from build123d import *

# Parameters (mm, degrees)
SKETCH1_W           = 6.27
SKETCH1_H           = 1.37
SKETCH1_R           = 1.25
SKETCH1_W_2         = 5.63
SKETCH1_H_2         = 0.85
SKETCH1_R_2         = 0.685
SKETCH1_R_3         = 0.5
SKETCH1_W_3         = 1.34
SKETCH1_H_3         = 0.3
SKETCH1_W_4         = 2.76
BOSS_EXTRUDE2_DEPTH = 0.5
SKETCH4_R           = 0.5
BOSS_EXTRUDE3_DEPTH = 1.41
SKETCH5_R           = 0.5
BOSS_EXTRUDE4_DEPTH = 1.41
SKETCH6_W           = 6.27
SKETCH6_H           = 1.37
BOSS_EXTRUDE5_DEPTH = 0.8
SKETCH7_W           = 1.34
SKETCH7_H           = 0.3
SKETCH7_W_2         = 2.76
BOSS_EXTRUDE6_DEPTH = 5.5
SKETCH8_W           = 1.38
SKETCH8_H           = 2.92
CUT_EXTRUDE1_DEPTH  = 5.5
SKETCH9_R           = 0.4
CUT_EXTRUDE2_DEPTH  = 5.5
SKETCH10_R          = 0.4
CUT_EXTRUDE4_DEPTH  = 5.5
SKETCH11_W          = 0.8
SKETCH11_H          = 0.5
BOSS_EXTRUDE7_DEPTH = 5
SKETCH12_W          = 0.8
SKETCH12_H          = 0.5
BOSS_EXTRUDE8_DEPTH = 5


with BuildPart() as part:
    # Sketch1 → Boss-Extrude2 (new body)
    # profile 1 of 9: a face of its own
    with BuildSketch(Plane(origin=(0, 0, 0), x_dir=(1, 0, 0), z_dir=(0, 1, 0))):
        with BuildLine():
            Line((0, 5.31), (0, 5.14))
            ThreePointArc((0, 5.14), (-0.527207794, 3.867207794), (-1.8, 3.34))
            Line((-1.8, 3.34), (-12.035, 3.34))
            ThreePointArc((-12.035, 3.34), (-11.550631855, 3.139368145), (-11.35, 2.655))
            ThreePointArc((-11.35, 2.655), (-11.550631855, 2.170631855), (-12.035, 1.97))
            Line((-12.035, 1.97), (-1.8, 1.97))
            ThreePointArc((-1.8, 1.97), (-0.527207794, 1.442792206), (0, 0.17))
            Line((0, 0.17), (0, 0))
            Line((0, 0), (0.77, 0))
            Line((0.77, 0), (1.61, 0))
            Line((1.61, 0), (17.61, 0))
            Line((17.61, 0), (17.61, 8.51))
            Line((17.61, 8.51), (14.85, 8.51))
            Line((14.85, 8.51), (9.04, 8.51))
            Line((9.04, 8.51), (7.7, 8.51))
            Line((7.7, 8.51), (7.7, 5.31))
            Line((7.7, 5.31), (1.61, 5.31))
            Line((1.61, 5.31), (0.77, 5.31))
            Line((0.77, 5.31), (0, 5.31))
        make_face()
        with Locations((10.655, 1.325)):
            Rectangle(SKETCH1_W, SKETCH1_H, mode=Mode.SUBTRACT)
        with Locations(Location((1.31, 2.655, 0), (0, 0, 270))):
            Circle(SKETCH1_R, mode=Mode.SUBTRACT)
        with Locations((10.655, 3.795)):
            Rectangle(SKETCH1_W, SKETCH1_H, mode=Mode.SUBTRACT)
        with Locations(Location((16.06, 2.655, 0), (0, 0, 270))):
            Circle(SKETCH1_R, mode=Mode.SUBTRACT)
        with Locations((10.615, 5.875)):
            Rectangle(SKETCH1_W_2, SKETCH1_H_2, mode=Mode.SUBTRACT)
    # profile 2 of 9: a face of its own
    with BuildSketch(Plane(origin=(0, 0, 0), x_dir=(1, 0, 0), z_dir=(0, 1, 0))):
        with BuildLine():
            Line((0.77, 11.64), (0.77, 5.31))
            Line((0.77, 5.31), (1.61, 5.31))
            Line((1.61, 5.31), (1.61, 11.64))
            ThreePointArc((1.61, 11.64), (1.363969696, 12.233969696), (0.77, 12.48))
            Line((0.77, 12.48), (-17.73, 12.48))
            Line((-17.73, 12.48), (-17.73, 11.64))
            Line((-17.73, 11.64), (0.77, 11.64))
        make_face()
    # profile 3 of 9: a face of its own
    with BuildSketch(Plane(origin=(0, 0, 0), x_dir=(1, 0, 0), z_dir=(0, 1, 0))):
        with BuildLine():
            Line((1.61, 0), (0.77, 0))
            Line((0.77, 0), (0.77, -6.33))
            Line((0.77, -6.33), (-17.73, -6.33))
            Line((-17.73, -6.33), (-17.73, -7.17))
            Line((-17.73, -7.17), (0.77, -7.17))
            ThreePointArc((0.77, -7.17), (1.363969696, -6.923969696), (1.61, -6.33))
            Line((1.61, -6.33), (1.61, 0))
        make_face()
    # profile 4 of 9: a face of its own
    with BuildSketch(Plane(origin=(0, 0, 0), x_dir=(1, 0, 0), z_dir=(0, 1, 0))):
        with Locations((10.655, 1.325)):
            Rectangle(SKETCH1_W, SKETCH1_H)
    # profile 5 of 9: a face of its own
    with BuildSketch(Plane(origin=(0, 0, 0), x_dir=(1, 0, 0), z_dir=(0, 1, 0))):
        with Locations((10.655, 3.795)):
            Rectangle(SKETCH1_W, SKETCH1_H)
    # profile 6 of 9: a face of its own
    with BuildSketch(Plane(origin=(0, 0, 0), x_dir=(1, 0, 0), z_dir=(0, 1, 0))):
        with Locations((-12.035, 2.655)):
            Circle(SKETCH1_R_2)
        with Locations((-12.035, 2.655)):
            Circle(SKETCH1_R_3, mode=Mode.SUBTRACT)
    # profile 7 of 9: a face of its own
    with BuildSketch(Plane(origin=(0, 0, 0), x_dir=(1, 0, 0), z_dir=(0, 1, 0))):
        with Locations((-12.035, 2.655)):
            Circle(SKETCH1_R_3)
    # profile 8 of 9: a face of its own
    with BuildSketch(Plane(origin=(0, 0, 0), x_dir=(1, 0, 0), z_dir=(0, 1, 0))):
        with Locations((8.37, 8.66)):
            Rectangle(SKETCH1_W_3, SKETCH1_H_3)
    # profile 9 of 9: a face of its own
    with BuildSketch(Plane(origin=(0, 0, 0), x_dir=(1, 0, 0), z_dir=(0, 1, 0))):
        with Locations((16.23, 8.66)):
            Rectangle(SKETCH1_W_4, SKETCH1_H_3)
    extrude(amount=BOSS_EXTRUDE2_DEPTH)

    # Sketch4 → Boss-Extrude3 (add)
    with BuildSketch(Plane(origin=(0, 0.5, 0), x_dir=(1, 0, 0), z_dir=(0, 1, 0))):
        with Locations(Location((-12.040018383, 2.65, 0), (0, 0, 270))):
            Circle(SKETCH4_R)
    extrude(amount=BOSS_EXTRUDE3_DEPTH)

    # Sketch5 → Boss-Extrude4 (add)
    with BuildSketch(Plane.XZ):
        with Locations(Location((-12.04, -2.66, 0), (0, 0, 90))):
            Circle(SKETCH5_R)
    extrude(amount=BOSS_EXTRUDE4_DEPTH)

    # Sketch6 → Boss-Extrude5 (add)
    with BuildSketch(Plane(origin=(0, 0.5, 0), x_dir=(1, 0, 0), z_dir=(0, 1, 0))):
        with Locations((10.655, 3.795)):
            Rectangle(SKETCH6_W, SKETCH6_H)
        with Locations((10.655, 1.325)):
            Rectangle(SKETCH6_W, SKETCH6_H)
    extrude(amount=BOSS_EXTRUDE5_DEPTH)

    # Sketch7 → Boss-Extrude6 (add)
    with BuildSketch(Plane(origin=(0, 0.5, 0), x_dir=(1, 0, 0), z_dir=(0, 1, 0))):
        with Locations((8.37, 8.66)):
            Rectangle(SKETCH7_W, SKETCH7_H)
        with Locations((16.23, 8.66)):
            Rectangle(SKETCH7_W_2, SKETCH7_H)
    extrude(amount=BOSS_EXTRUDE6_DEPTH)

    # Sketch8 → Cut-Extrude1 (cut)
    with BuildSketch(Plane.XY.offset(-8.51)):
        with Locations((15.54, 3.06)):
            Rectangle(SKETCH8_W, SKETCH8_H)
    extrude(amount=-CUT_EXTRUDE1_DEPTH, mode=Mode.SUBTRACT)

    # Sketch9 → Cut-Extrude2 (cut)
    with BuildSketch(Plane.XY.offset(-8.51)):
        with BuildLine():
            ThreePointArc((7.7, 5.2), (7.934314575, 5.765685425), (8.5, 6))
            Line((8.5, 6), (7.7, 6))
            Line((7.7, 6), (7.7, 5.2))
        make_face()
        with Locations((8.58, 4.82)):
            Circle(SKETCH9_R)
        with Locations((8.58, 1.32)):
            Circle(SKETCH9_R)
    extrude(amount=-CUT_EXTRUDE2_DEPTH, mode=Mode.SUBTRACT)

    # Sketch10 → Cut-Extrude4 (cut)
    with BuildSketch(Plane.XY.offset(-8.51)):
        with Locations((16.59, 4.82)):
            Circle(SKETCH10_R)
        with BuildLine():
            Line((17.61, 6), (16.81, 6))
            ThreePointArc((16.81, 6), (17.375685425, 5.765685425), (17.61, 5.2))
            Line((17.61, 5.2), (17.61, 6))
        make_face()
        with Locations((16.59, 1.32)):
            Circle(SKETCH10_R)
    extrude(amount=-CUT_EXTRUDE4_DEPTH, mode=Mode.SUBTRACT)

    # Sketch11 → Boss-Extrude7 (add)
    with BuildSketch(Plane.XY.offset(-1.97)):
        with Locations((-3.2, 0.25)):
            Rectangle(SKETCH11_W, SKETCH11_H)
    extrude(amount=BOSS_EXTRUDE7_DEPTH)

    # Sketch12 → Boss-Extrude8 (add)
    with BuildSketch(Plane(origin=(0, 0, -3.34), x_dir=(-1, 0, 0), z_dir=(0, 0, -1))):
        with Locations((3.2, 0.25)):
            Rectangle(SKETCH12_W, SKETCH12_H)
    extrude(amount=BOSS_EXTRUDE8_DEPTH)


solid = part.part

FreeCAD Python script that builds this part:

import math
import FreeCAD as App
import Part
import Sketcher
Q = App.Units.Quantity

doc = App.newDocument("Part")
params = doc.addObject("Spreadsheet::Sheet", "Params")
for row, (alias, value) in enumerate([
    ("sketch1_diameter", "2.5 mm"),
    ("sketch1_radius", "1.8 mm"),
    ("sketch1_width", "16 mm"),
    ("sketch1_radius2", "0.84 mm"),
    ("sketch1_width2", "18.5 mm"),
    ("pad1_length", "0.5 mm"),
    ("sketch2_diameter", "1 mm"),
    ("pad2_length", "1.41 mm"),
    ("sketch3_diameter", "1 mm"),
    ("pad3_length", "1.41 mm"),
    ("sketch4_width", "6.27 mm"),
    ("sketch4_height", "1.37 mm"),
    ("pad4_length", "0.8 mm"),
    ("sketch5_height", "0.3 mm"),
    ("sketch5_width", "1.34 mm"),
    ("sketch5_width2", "2.76 mm"),
    ("pad5_length", "5.5 mm"),
    ("sketch6_width", "1.38 mm"),
    ("sketch6_height", "2.92 mm"),
    ("pocket1_length", "5.5 mm"),
    ("sketch7_diameter", "0.8 mm"),
    ("sketch7_radius", "0.8 mm"),
    ("pocket2_length", "5.5 mm"),
    ("sketch8_diameter", "0.8 mm"),
    ("sketch8_radius", "0.8 mm"),
    ("pocket3_length", "5.5 mm"),
    ("sketch9_width", "0.8 mm"),
    ("sketch9_height", "0.5 mm"),
    ("pad6_length", "5 mm"),
    ("sketch10_width", "0.8 mm"),
    ("sketch10_height", "0.5 mm"),
    ("pad7_length", "5 mm"),
], start=1):
    params.set(f"A{row}", alias)
    params.set(f"B{row}", "=" + value)
    params.setAlias(f"B{row}", alias)

body = doc.addObject("PartDesign::Body", "Body")

# Sketch on XZ plane
sketch1 = body.newObject("Sketcher::SketchObject", "Sketch")
sketch1.AttachmentSupport = (doc.getObject("XZ_Plane"), [""])
sketch1.MapMode = "FlatFace"
sketch1.addGeometry(Part.LineSegment(App.Vector(0, -5.31, 0), App.Vector(0, -5.14, 0)), False)
sketch1.addGeometry(Part.ArcOfCircle(Part.Circle(App.Vector(-1.8, -5.14, 0), App.Vector(0, 0, 1), 1.8), math.radians(0), math.radians(90)), False)
sketch1.addGeometry(Part.LineSegment(App.Vector(-1.8, -3.34, 0), App.Vector(-12.04, -3.34, 0)), False)
sketch1.addGeometry(Part.ArcOfCircle(Part.Circle(App.Vector(-12.04, -2.65, 0), App.Vector(0, 0, 1), 0.69), math.radians(90), math.radians(270)), False)
sketch1.addGeometry(Part.LineSegment(App.Vector(-12.04, -1.97, 0), App.Vector(-1.8, -1.97, 0)), False)
sketch1.addGeometry(Part.ArcOfCircle(Part.Circle(App.Vector(-1.8, -0.17, 0), App.Vector(0, 0, 1), 1.8), math.radians(-90), math.radians(0)), False)
sketch1.addGeometry(Part.LineSegment(App.Vector(0, -0.17, 0), App.Vector(0, 0, 0)), False)
sketch1.addGeometry(Part.LineSegment(App.Vector(0, 0, 0), App.Vector(0.77, 0, 0)), False)
sketch1.addGeometry(Part.LineSegment(App.Vector(0.77, 0, 0), App.Vector(0.77, 6.33, 0)), False)
sketch1.addGeometry(Part.LineSegment(App.Vector(0.77, 6.33, 0), App.Vector(-17.73, 6.33, 0)), False)
sketch1.addGeometry(Part.LineSegment(App.Vector(-17.73, 6.33, 0), App.Vector(-17.73, 7.17, 0)), False)
sketch1.addGeometry(Part.LineSegment(App.Vector(-17.73, 7.17, 0), App.Vector(0.77, 7.17, 0)), False)
sketch1.addGeometry(Part.ArcOfCircle(Part.Circle(App.Vector(0.77, 6.33, 0), App.Vector(0, 0, 1), 0.84), math.radians(0), math.radians(90)), False)
sketch1.addGeometry(Part.LineSegment(App.Vector(1.61, 6.33, 0), App.Vector(1.61, 0, 0)), False)
sketch1.addGeometry(Part.LineSegment(App.Vector(1.61, 0, 0), App.Vector(17.61, 0, 0)), False)
sketch1.addGeometry(Part.LineSegment(App.Vector(17.61, 0, 0), App.Vector(17.61, -8.81, 0)), False)
sketch1.addGeometry(Part.LineSegment(App.Vector(17.61, -8.81, 0), App.Vector(14.85, -8.81, 0)), False)
sketch1.addGeometry(Part.LineSegment(App.Vector(14.85, -8.81, 0), App.Vector(14.85, -8.51, 0)), False)
sketch1.addGeometry(Part.LineSegment(App.Vector(14.85, -8.51, 0), App.Vector(9.04, -8.51, 0)), False)
sketch1.addGeometry(Part.LineSegment(App.Vector(9.04, -8.51, 0), App.Vector(9.04, -8.81, 0)), False)
sketch1.addGeometry(Part.LineSegment(App.Vector(9.04, -8.81, 0), App.Vector(7.7, -8.81, 0)), False)
sketch1.addGeometry(Part.LineSegment(App.Vector(7.7, -8.81, 0), App.Vector(7.7, -5.31, 0)), False)
sketch1.addGeometry(Part.LineSegment(App.Vector(7.7, -5.31, 0), App.Vector(1.61, -5.31, 0)), False)
sketch1.addGeometry(Part.LineSegment(App.Vector(1.61, -5.31, 0), App.Vector(1.61, -11.64, 0)), False)
sketch1.addGeometry(Part.ArcOfCircle(Part.Circle(App.Vector(0.77, -11.64, 0), App.Vector(0, 0, 1), 0.84), math.radians(-90), math.radians(0)), False)
sketch1.addGeometry(Part.LineSegment(App.Vector(0.77, -12.48, 0), App.Vector(-17.73, -12.48, 0)), False)
sketch1.addGeometry(Part.LineSegment(App.Vector(-17.73, -12.48, 0), App.Vector(-17.73, -11.64, 0)), False)
sketch1.addGeometry(Part.LineSegment(App.Vector(-17.73, -11.64, 0), App.Vector(0.77, -11.64, 0)), False)
sketch1.addGeometry(Part.LineSegment(App.Vector(0.77, -11.64, 0), App.Vector(0.77, -5.31, 0)), False)
sketch1.addGeometry(Part.LineSegment(App.Vector(0.77, -5.31, 0), App.Vector(0, -5.31, 0)), False)
sketch1.addGeometry(Part.Circle(App.Vector(1.31, -2.65, 0), App.Vector(0, 0, 1), 1.25), False)
sketch1.addGeometry(Part.Circle(App.Vector(16.06, -2.65, 0), App.Vector(0, 0, 1), 1.25), False)
sketch1.addGeometry(Part.LineSegment(App.Vector(13.43, -5.45, 0), App.Vector(7.8, -5.45, 0)), False)
sketch1.addGeometry(Part.LineSegment(App.Vector(7.8, -5.45, 0), App.Vector(7.8, -6.3, 0)), False)
sketch1.addGeometry(Part.LineSegment(App.Vector(7.8, -6.3, 0), App.Vector(13.43, -6.3, 0)), False)
sketch1.addGeometry(Part.LineSegment(App.Vector(13.43, -6.3, 0), App.Vector(13.43, -5.45, 0)), False)
sketch1.addConstraint(Sketcher.Constraint("Tangent", 0, 2, 1, 1))
sketch1.addConstraint(Sketcher.Constraint("Tangent", 1, 2, 2, 1))
sketch1.addConstraint(Sketcher.Constraint("Tangent", 2, 2, 3, 2))
sketch1.addConstraint(Sketcher.Constraint("Tangent", 3, 1, 4, 1))
sketch1.addConstraint(Sketcher.Constraint("Tangent", 4, 2, 5, 1))
sketch1.addConstraint(Sketcher.Constraint("Tangent", 5, 2, 6, 1))
sketch1.addConstraint(Sketcher.Constraint("Coincident", 6, 2, 7, 1))
sketch1.addConstraint(Sketcher.Constraint("Coincident", 7, 2, 8, 1))
sketch1.addConstraint(Sketcher.Constraint("Coincident", 8, 2, 9, 1))
sketch1.addConstraint(Sketcher.Constraint("Coincident", 9, 2, 10, 1))
sketch1.addConstraint(Sketcher.Constraint("Coincident", 10, 2, 11, 1))
sketch1.addConstraint(Sketcher.Constraint("Tangent", 11, 2, 12, 2))
sketch1.addConstraint(Sketcher.Constraint("Tangent", 12, 1, 13, 1))
sketch1.addConstraint(Sketcher.Constraint("Coincident", 13, 2, 14, 1))
sketch1.addConstraint(Sketcher.Constraint("Coincident", 14, 2, 15, 1))
sketch1.addConstraint(Sketcher.Constraint("Coincident", 15, 2, 16, 1))
sketch1.addConstraint(Sketcher.Constraint("Coincident", 16, 2, 17, 1))
sketch1.addConstraint(Sketcher.Constraint("Coincident", 17, 2, 18, 1))
sketch1.addConstraint(Sketcher.Constraint("Coincident", 18, 2, 19, 1))
sketch1.addConstraint(Sketcher.Constraint("Coincident", 19, 2, 20, 1))
sketch1.addConstraint(Sketcher.Constraint("Coincident", 20, 2, 21, 1))
sketch1.addConstraint(Sketcher.Constraint("Coincident", 21, 2, 22, 1))
sketch1.addConstraint(Sketcher.Constraint("Coincident", 22, 2, 23, 1))
sketch1.addConstraint(Sketcher.Constraint("Tangent", 23, 2, 24, 2))
sketch1.addConstraint(Sketcher.Constraint("Tangent", 24, 1, 25, 1))
sketch1.addConstraint(Sketcher.Constraint("Coincident", 25, 2, 26, 1))
sketch1.addConstraint(Sketcher.Constraint("Coincident", 26, 2, 27, 1))
sketch1.addConstraint(Sketcher.Constraint("Coincident", 27, 2, 28, 1))
sketch1.addConstraint(Sketcher.Constraint("Coincident", 28, 2, 29, 1))
sketch1.addConstraint(Sketcher.Constraint("Coincident", 29, 2, 0, 1))
sketch1.addConstraint(Sketcher.Constraint("Coincident", 32, 2, 33, 1))
sketch1.addConstraint(Sketcher.Constraint("Coincident", 33, 2, 34, 1))
sketch1.addConstraint(Sketcher.Constraint("Coincident", 34, 2, 35, 1))
sketch1.addConstraint(Sketcher.Constraint("Coincident", 35, 2, 32, 1))
sketch1.addConstraint(Sketcher.Constraint("Vertical", 0))
sketch1.addConstraint(Sketcher.Constraint("Horizontal", 2))
sketch1.addConstraint(Sketcher.Constraint("Horizontal", 4))
sketch1.addConstraint(Sketcher.Constraint("Vertical", 6))
sketch1.addConstraint(Sketcher.Constraint("Horizontal", 7))
sketch1.addConstraint(Sketcher.Constraint("Vertical", 8))
sketch1.addConstraint(Sketcher.Constraint("Horizontal", 9))
sketch1.addConstraint(Sketcher.Constraint("Vertical", 10))
sketch1.addConstraint(Sketcher.Constraint("Horizontal", 11))
sketch1.addConstraint(Sketcher.Constraint("Vertical", 13))
sketch1.addConstraint(Sketcher.Constraint("Horizontal", 14))
sketch1.addConstraint(Sketcher.Constraint("Vertical", 15))
sketch1.addConstraint(Sketcher.Constraint("Horizontal", 16))
sketch1.addConstraint(Sketcher.Constraint("Vertical", 17))
sketch1.addConstraint(Sketcher.Constraint("Horizontal", 18))
sketch1.addConstraint(Sketcher.Constraint("Vertical", 19))
sketch1.addConstraint(Sketcher.Constraint("Horizontal", 20))
sketch1.addConstraint(Sketcher.Constraint("Vertical", 21))
sketch1.addConstraint(Sketcher.Constraint("Horizontal", 22))
sketch1.addConstraint(Sketcher.Constraint("Vertical", 23))
sketch1.addConstraint(Sketcher.Constraint("Horizontal", 25))
sketch1.addConstraint(Sketcher.Constraint("Vertical", 26))
sketch1.addConstraint(Sketcher.Constraint("Horizontal", 27))
sketch1.addConstraint(Sketcher.Constraint("Vertical", 28))
sketch1.addConstraint(Sketcher.Constraint("Horizontal", 29))
sketch1.addConstraint(Sketcher.Constraint("Horizontal", 32))
sketch1.addConstraint(Sketcher.Constraint("Vertical", 33))
sketch1.addConstraint(Sketcher.Constraint("Horizontal", 34))
sketch1.addConstraint(Sketcher.Constraint("Vertical", 35))
sketch1.addConstraint(Sketcher.Constraint("Coincident", 6, 2, -1, 1))
sketch1.addConstraint(Sketcher.Constraint("Coincident", 8, 2, 12, 3))
sketch1.addConstraint(Sketcher.Constraint("Coincident", 27, 2, 24, 3))
sketch1.addConstraint(Sketcher.Constraint("Equal", 1, 5))
sketch1.addConstraint(Sketcher.Constraint("Equal", 12, 24))
sketch1.addConstraint(Sketcher.Constraint("Equal", 30, 31))
sketch1.addConstraint(Sketcher.Constraint("PointOnObject", 0, 2, -2))
sketch1.addConstraint(Sketcher.Constraint("PointOnObject", 13, 2, -1))
sketch1.addConstraint(Sketcher.Constraint("Horizontal", 3, 3, 30, 3))
sketch1.addConstraint(Sketcher.Constraint("Horizontal", 30, 3, 31, 3))
sketch1.addConstraint(Sketcher.Constraint("Horizontal", 16, 2, 19, 2))
sketch1.addConstraint(Sketcher.Constraint("Horizontal", 22, 2, 28, 2))
sketch1.addConstraint(Sketcher.Constraint("Vertical", 12, 3, 24, 3))
sketch1.addConstraint(Sketcher.Constraint("Vertical", 10, 2, 25, 2))
sketch1.addConstraint(Sketcher.Constraint("Equal", 0, 6))
sketch1.addConstraint(Sketcher.Constraint("Equal", 13, 23))
sketch1.addConstraint(Sketcher.Constraint("Diameter", 30, Q("2.5 mm")))
sketch1.addConstraint(Sketcher.Constraint("Radius", 1, Q("1.8 mm")))
sketch1.addConstraint(Sketcher.Constraint("DistanceX", 14, 1, 14, 2, Q("16 mm")))
sketch1.addConstraint(Sketcher.Constraint("Radius", 12, Q("0.84 mm")))
sketch1.addConstraint(Sketcher.Constraint("DistanceX", 9, 2, 9, 1, Q("18.5 mm")))
sketch1.addConstraint(Sketcher.Constraint("DistanceY", 17, 1, 17, 2, Q("0.3 mm")))
sketch1.addConstraint(Sketcher.Constraint("DistanceY", 21, 1, 21, 2, Q("3.5 mm")))
sketch1.addConstraint(Sketcher.Constraint("Radius", 3, Q("0.685 mm")))
sketch1.addConstraint(Sketcher.Constraint("DistanceX", 7, 1, 7, 2, Q("0.77 mm")))
sketch1.addConstraint(Sketcher.Constraint("DistanceX", 16, 2, 16, 1, Q("2.76 mm")))
sketch1.addConstraint(Sketcher.Constraint("DistanceX", 18, 2, 18, 1, Q("5.81 mm")))
sketch1.addConstraint(Sketcher.Constraint("DistanceX", 20, 2, 20, 1, Q("1.34 mm")))
sketch1.addConstraint(Sketcher.Constraint("DistanceX", 32, 2, 32, 1, Q("5.63 mm")))
sketch1.addConstraint(Sketcher.Constraint("DistanceY", 0, 1, 0, 2, Q("0.17 mm")))
sketch1.addConstraint(Sketcher.Constraint("DistanceY", 8, 1, 8, 2, Q("6.33 mm")))
sketch1.addConstraint(Sketcher.Constraint("DistanceY", 33, 2, 33, 1, Q("0.85 mm")))
sketch1.addConstraint(Sketcher.Constraint("DistanceX", -1, 1, 32, 2, Q("7.8 mm")))
sketch1.addConstraint(Sketcher.Constraint("DistanceY", 33, 2, -1, 1, Q("6.3 mm")))
sketch1.addConstraint(Sketcher.Constraint("DistanceX", 30, 3, 13, 2, Q("0.3 mm")))
sketch1.addConstraint(Sketcher.Constraint("DistanceX", 2, 2, 2, 1, Q("10.235 mm")))
sketch1.addConstraint(Sketcher.Constraint("DistanceX", -1, 1, 31, 3, Q("16.06 mm")))
sketch1.setExpression("Constraints[79]", "Params.sketch1_diameter")
sketch1.setExpression("Constraints[80]", "Params.sketch1_radius")
sketch1.setExpression("Constraints[81]", "Params.sketch1_width")
sketch1.setExpression("Constraints[82]", "Params.sketch1_radius2")
sketch1.setExpression("Constraints[83]", "Params.sketch1_width2")
pad1 = body.newObject("PartDesign::Pad", "Pad")
pad1.Profile = sketch1
pad1.setExpression("Length", "Params.pad1_length")
pad1.Reversed = True

# Sketch on XZ plane
sketch2 = body.newObject("Sketcher::SketchObject", "Sketch001")
sketch2.AttachmentSupport = (doc.getObject("XZ_Plane"), [""])
sketch2.MapMode = "FlatFace"
sketch2.AttachmentOffset = App.Placement(App.Vector(0, 0, -0.5), App.Rotation())
sketch2.addGeometry(Part.Circle(App.Vector(-12, -2.6, 0), App.Vector(0, 0, 1), 0.5), False)
sketch2.addConstraint(Sketcher.Constraint("Diameter", 0, Q("1 mm")))
sketch2.addConstraint(Sketcher.Constraint("DistanceY", 0, 3, -1, 1, Q("2.65 mm")))
sketch2.addConstraint(Sketcher.Constraint("DistanceX", 0, 3, -1, 1, Q("12.040018 mm")))
sketch2.setExpression("Constraints[0]", "Params.sketch2_diameter")
pad2 = body.newObject("PartDesign::Pad", "Pad001")
pad2.Profile = sketch2
pad2.setExpression("Length", "Params.pad2_length")
pad2.Reversed = True

# Sketch on XZ plane
sketch3 = body.newObject("Sketcher::SketchObject", "Sketch002")
sketch3.AttachmentSupport = (doc.getObject("XZ_Plane"), [""])
sketch3.MapMode = "FlatFace"
sketch3.addGeometry(Part.Circle(App.Vector(-12, -2.7, 0), App.Vector(0, 0, 1), 0.5), False)
sketch3.addConstraint(Sketcher.Constraint("Diameter", 0, Q("1 mm")))
sketch3.addConstraint(Sketcher.Constraint("DistanceX", 0, 3, -1, 1, Q("12.04 mm")))
sketch3.addConstraint(Sketcher.Constraint("DistanceY", 0, 3, -1, 1, Q("2.66 mm")))
sketch3.setExpression("Constraints[0]", "Params.sketch3_diameter")
pad3 = body.newObject("PartDesign::Pad", "Pad002")
pad3.Profile = sketch3
pad3.setExpression("Length", "Params.pad3_length")

# Sketch on XZ plane
sketch4 = body.newObject("Sketcher::SketchObject", "Sketch003")
sketch4.AttachmentSupport = (doc.getObject("XZ_Plane"), [""])
sketch4.MapMode = "FlatFace"
sketch4.AttachmentOffset = App.Placement(App.Vector(0, 0, -0.5), App.Rotation())
sketch4.addGeometry(Part.LineSegment(App.Vector(7.5, -4.5, 0), App.Vector(7.5, -3.1, 0)), False)
sketch4.addGeometry(Part.LineSegment(App.Vector(7.5, -3.1, 0), App.Vector(13.8, -3.1, 0)), False)
sketch4.addGeometry(Part.LineSegment(App.Vector(13.8, -3.1, 0), App.Vector(13.8, -4.5, 0)), False)
sketch4.addGeometry(Part.LineSegment(App.Vector(13.8, -4.5, 0), App.Vector(7.5, -4.5, 0)), False)
sketch4.addGeometry(Part.LineSegment(App.Vector(7.5, -2, 0), App.Vector(7.5, -0.6, 0)), False)
sketch4.addGeometry(Part.LineSegment(App.Vector(7.5, -0.6, 0), App.Vector(13.8, -0.6, 0)), False)
sketch4.addGeometry(Part.LineSegment(App.Vector(13.8, -0.6, 0), App.Vector(13.8, -2, 0)), False)
sketch4.addGeometry(Part.LineSegment(App.Vector(13.8, -2, 0), App.Vector(7.5, -2, 0)), False)
sketch4.addConstraint(Sketcher.Constraint("Coincident", 0, 2, 1, 1))
sketch4.addConstraint(Sketcher.Constraint("Coincident", 1, 2, 2, 1))
sketch4.addConstraint(Sketcher.Constraint("Coincident", 2, 2, 3, 1))
sketch4.addConstraint(Sketcher.Constraint("Coincident", 3, 2, 0, 1))
sketch4.addConstraint(Sketcher.Constraint("Coincident", 4, 2, 5, 1))
sketch4.addConstraint(Sketcher.Constraint("Coincident", 5, 2, 6, 1))
sketch4.addConstraint(Sketcher.Constraint("Coincident", 6, 2, 7, 1))
sketch4.addConstraint(Sketcher.Constraint("Coincident", 7, 2, 4, 1))
sketch4.addConstraint(Sketcher.Constraint("Vertical", 0))
sketch4.addConstraint(Sketcher.Constraint("Horizontal", 1))
sketch4.addConstraint(Sketcher.Constraint("Vertical", 2))
sketch4.addConstraint(Sketcher.Constraint("Horizontal", 3))
sketch4.addConstraint(Sketcher.Constraint("Vertical", 4))
sketch4.addConstraint(Sketcher.Constraint("Horizontal", 5))
sketch4.addConstraint(Sketcher.Constraint("Vertical", 6))
sketch4.addConstraint(Sketcher.Constraint("Horizontal", 7))
sketch4.addConstraint(Sketcher.Constraint("Vertical", 3, 2, 4, 2))
sketch4.addConstraint(Sketcher.Constraint("Vertical", 2, 2, 5, 2))
sketch4.addConstraint(Sketcher.Constraint("Equal", 2, 4))
sketch4.addConstraint(Sketcher.Constraint("DistanceX", 1, 1, 1, 2, Q("6.27 mm")))
sketch4.addConstraint(Sketcher.Constraint("DistanceY", 0, 1, 0, 2, Q("1.37 mm")))
sketch4.addConstraint(Sketcher.Constraint("DistanceY", 1, 2, 6, 2, Q("1.1 mm")))
sketch4.addConstraint(Sketcher.Constraint("DistanceX", -1, 1, 0, 2, Q("7.52 mm")))
sketch4.addConstraint(Sketcher.Constraint("DistanceY", 0, 2, -1, 1, Q("3.11 mm")))
sketch4.setExpression("Constraints[19]", "Params.sketch4_width")
sketch4.setExpression("Constraints[20]", "Params.sketch4_height")
pad4 = body.newObject("PartDesign::Pad", "Pad003")
pad4.Profile = sketch4
pad4.setExpression("Length", "Params.pad4_length")
pad4.Reversed = True

# Sketch on XZ plane
sketch5 = body.newObject("Sketcher::SketchObject", "Sketch004")
sketch5.AttachmentSupport = (doc.getObject("XZ_Plane"), [""])
sketch5.MapMode = "FlatFace"
sketch5.AttachmentOffset = App.Placement(App.Vector(0, 0, -0.5), App.Rotation())
sketch5.addGeometry(Part.LineSegment(App.Vector(7.7, -8.81, 0), App.Vector(7.7, -8.51, 0)), False)
sketch5.addGeometry(Part.LineSegment(App.Vector(7.7, -8.51, 0), App.Vector(9.04, -8.51, 0)), False)
sketch5.addGeometry(Part.LineSegment(App.Vector(9.04, -8.51, 0), App.Vector(9.04, -8.81, 0)), False)
sketch5.addGeometry(Part.LineSegment(App.Vector(9.04, -8.81, 0), App.Vector(7.7, -8.81, 0)), False)
sketch5.addGeometry(Part.LineSegment(App.Vector(14.85, -8.81, 0), App.Vector(14.85, -8.51, 0)), False)
sketch5.addGeometry(Part.LineSegment(App.Vector(14.85, -8.51, 0), App.Vector(17.61, -8.51, 0)), False)
sketch5.addGeometry(Part.LineSegment(App.Vector(17.61, -8.51, 0), App.Vector(17.61, -8.81, 0)), False)
sketch5.addGeometry(Part.LineSegment(App.Vector(17.61, -8.81, 0), App.Vector(14.85, -8.81, 0)), False)
sketch5.addConstraint(Sketcher.Constraint("Coincident", 0, 2, 1, 1))
sketch5.addConstraint(Sketcher.Constraint("Coincident", 1, 2, 2, 1))
sketch5.addConstraint(Sketcher.Constraint("Coincident", 2, 2, 3, 1))
sketch5.addConstraint(Sketcher.Constraint("Coincident", 3, 2, 0, 1))
sketch5.addConstraint(Sketcher.Constraint("Coincident", 4, 2, 5, 1))
sketch5.addConstraint(Sketcher.Constraint("Coincident", 5, 2, 6, 1))
sketch5.addConstraint(Sketcher.Constraint("Coincident", 6, 2, 7, 1))
sketch5.addConstraint(Sketcher.Constraint("Coincident", 7, 2, 4, 1))
sketch5.addConstraint(Sketcher.Constraint("Vertical", 0))
sketch5.addConstraint(Sketcher.Constraint("Horizontal", 1))
sketch5.addConstraint(Sketcher.Constraint("Vertical", 2))
sketch5.addConstraint(Sketcher.Constraint("Horizontal", 3))
sketch5.addConstraint(Sketcher.Constraint("Vertical", 4))
sketch5.addConstraint(Sketcher.Constraint("Horizontal", 5))
sketch5.addConstraint(Sketcher.Constraint("Vertical", 6))
sketch5.addConstraint(Sketcher.Constraint("Horizontal", 7))
sketch5.addConstraint(Sketcher.Constraint("Horizontal", 1, 2, 4, 2))
sketch5.addConstraint(Sketcher.Constraint("Horizontal", 3, 2, 6, 2))
sketch5.addConstraint(Sketcher.Constraint("DistanceY", 0, 1, 0, 2, Q("0.3 mm")))
sketch5.addConstraint(Sketcher.Constraint("DistanceX", 1, 1, 1, 2, Q("1.34 mm")))
sketch5.addConstraint(Sketcher.Constraint("DistanceX", 5, 1, 5, 2, Q("2.76 mm")))
sketch5.addConstraint(Sketcher.Constraint("DistanceX", -1, 1, 0, 2, Q("7.7 mm")))
sketch5.addConstraint(Sketcher.Constraint("DistanceY", 0, 2, -1, 1, Q("8.51 mm")))
sketch5.addConstraint(Sketcher.Constraint("DistanceX", -1, 1, 4, 2, Q("14.85 mm")))
sketch5.setExpression("Constraints[18]", "Params.sketch5_height")
sketch5.setExpression("Constraints[19]", "Params.sketch5_width")
sketch5.setExpression("Constraints[20]", "Params.sketch5_width2")
pad5 = body.newObject("PartDesign::Pad", "Pad004")
pad5.Profile = sketch5
pad5.setExpression("Length", "Params.pad5_length")
pad5.Reversed = True

# Sketch on XY plane
sketch6 = body.newObject("Sketcher::SketchObject", "Sketch005")
sketch6.AttachmentSupport = (doc.getObject("XY_Plane"), [""])
sketch6.MapMode = "FlatFace"
sketch6.AttachmentOffset = App.Placement(App.Vector(0, 0, -8.51), App.Rotation())
sketch6.addGeometry(Part.LineSegment(App.Vector(14.8, 4.5, 0), App.Vector(14.8, 1.6, 0)), False)
sketch6.addGeometry(Part.LineSegment(App.Vector(14.8, 1.6, 0), App.Vector(16.2, 1.6, 0)), False)
sketch6.addGeometry(Part.LineSegment(App.Vector(16.2, 1.6, 0), App.Vector(16.2, 4.5, 0)), False)
sketch6.addGeometry(Part.LineSegment(App.Vector(16.2, 4.5, 0), App.Vector(14.8, 4.5, 0)), False)
sketch6.addConstraint(Sketcher.Constraint("Coincident", 0, 2, 1, 1))
sketch6.addConstraint(Sketcher.Constraint("Coincident", 1, 2, 2, 1))
sketch6.addConstraint(Sketcher.Constraint("Coincident", 2, 2, 3, 1))
sketch6.addConstraint(Sketcher.Constraint("Coincident", 3, 2, 0, 1))
sketch6.addConstraint(Sketcher.Constraint("Vertical", 0))
sketch6.addConstraint(Sketcher.Constraint("Horizontal", 1))
sketch6.addConstraint(Sketcher.Constraint("Vertical", 2))
sketch6.addConstraint(Sketcher.Constraint("Horizontal", 3))
sketch6.addConstraint(Sketcher.Constraint("DistanceX", 1, 1, 1, 2, Q("1.38 mm")))
sketch6.addConstraint(Sketcher.Constraint("DistanceY", 0, 2, 0, 1, Q("2.92 mm")))
sketch6.addConstraint(Sketcher.Constraint("DistanceY", -1, 1, 0, 2, Q("1.6 mm")))
sketch6.addConstraint(Sketcher.Constraint("DistanceX", -1, 1, 0, 2, Q("14.85 mm")))
sketch6.setExpression("Constraints[8]", "Params.sketch6_width")
sketch6.setExpression("Constraints[9]", "Params.sketch6_height")
pocket1 = body.newObject("PartDesign::Pocket", "Pocket")
pocket1.Profile = sketch6
pocket1.setExpression("Length", "Params.pocket1_length")

# Sketch on XY plane
sketch7 = body.newObject("Sketcher::SketchObject", "Sketch006")
sketch7.AttachmentSupport = (doc.getObject("XY_Plane"), [""])
sketch7.MapMode = "FlatFace"
sketch7.AttachmentOffset = App.Placement(App.Vector(0, 0, -8.51), App.Rotation())
sketch7.addGeometry(Part.ArcOfCircle(Part.Circle(App.Vector(8.5, 5.2, 0), App.Vector(0, 0, 1), 0.8), math.radians(90), math.radians(180)), False)
sketch7.addGeometry(Part.LineSegment(App.Vector(8.5, 6, 0), App.Vector(7.7, 6, 0)), False)
sketch7.addGeometry(Part.LineSegment(App.Vector(7.7, 6, 0), App.Vector(7.7, 5.2, 0)), False)
sketch7.addGeometry(Part.Circle(App.Vector(8.58, 4.82, 0), App.Vector(0, 0, 1), 0.4), False)
sketch7.addGeometry(Part.Circle(App.Vector(8.58, 1.32, 0), App.Vector(0, 0, 1), 0.4), False)
sketch7.addConstraint(Sketcher.Constraint("Tangent", 0, 1, 1, 1))
sketch7.addConstraint(Sketcher.Constraint("Coincident", 1, 2, 2, 1))
sketch7.addConstraint(Sketcher.Constraint("Tangent", 2, 2, 0, 2))
sketch7.addConstraint(Sketcher.Constraint("Horizontal", 1))
sketch7.addConstraint(Sketcher.Constraint("Vertical", 2))
sketch7.addConstraint(Sketcher.Constraint("Equal", 3, 4))
sketch7.addConstraint(Sketcher.Constraint("Vertical", 3, 3, 4, 3))
sketch7.addConstraint(Sketcher.Constraint("Diameter", 3, Q("0.8 mm")))
sketch7.addConstraint(Sketcher.Constraint("Radius", 0, Q("0.8 mm")))
sketch7.addConstraint(Sketcher.Constraint("DistanceY", -1, 1, 0, 1, Q("6 mm")))
sketch7.addConstraint(Sketcher.Constraint("DistanceX", -1, 1, 0, 3, Q("8.5 mm")))
sketch7.addConstraint(Sketcher.Constraint("DistanceY", 4, 3, 3, 3, Q("3.5 mm")))
sketch7.addConstraint(Sketcher.Constraint("DistanceX", -1, 1, 3, 3, Q("8.58 mm")))
sketch7.addConstraint(Sketcher.Constraint("DistanceY", -1, 1, 3, 3, Q("4.82 mm")))
sketch7.setExpression("Constraints[7]", "Params.sketch7_diameter")
sketch7.setExpression("Constraints[8]", "Params.sketch7_radius")
pocket2 = body.newObject("PartDesign::Pocket", "Pocket001")
pocket2.Profile = sketch7
pocket2.setExpression("Length", "Params.pocket2_length")

# Sketch on XY plane
sketch8 = body.newObject("Sketcher::SketchObject", "Sketch007")
sketch8.AttachmentSupport = (doc.getObject("XY_Plane"), [""])
sketch8.MapMode = "FlatFace"
sketch8.AttachmentOffset = App.Placement(App.Vector(0, 0, -8.51), App.Rotation())
sketch8.addGeometry(Part.Circle(App.Vector(16.59, 4.82, 0), App.Vector(0, 0, 1), 0.4), False)
sketch8.addGeometry(Part.LineSegment(App.Vector(17.61, 6, 0), App.Vector(16.81, 6, 0)), False)
sketch8.addGeometry(Part.ArcOfCircle(Part.Circle(App.Vector(16.81, 5.2, 0), App.Vector(0, 0, 1), 0.8), math.radians(0), math.radians(90)), False)
sketch8.addGeometry(Part.LineSegment(App.Vector(17.61, 5.2, 0), App.Vector(17.61, 6, 0)), False)
sketch8.addGeometry(Part.Circle(App.Vector(16.59, 1.32, 0), App.Vector(0, 0, 1), 0.4), False)
sketch8.addConstraint(Sketcher.Constraint("Tangent", 1, 2, 2, 2))
sketch8.addConstraint(Sketcher.Constraint("Tangent", 2, 1, 3, 1))
sketch8.addConstraint(Sketcher.Constraint("Coincident", 3, 2, 1, 1))
sketch8.addConstraint(Sketcher.Constraint("Horizontal", 1))
sketch8.addConstraint(Sketcher.Constraint("Vertical", 3))
sketch8.addConstraint(Sketcher.Constraint("Equal", 0, 4))
sketch8.addConstraint(Sketcher.Constraint("Vertical", 0, 3, 4, 3))
sketch8.addConstraint(Sketcher.Constraint("Diameter", 0, Q("0.8 mm")))
sketch8.addConstraint(Sketcher.Constraint("Radius", 2, Q("0.8 mm")))
sketch8.addConstraint(Sketcher.Constraint("DistanceY", -1, 1, 1, 2, Q("6 mm")))
sketch8.addConstraint(Sketcher.Constraint("DistanceY", 4, 3, 0, 3, Q("3.5 mm")))
sketch8.addConstraint(Sketcher.Constraint("DistanceX", -1, 1, 0, 3, Q("16.59 mm")))
sketch8.addConstraint(Sketcher.Constraint("DistanceY", -1, 1, 0, 3, Q("4.82 mm")))
sketch8.addConstraint(Sketcher.Constraint("DistanceX", -1, 1, 2, 3, Q("16.81 mm")))
sketch8.setExpression("Constraints[7]", "Params.sketch8_diameter")
sketch8.setExpression("Constraints[8]", "Params.sketch8_radius")
pocket3 = body.newObject("PartDesign::Pocket", "Pocket002")
pocket3.Profile = sketch8
pocket3.setExpression("Length", "Params.pocket3_length")

# Sketch on XY plane
sketch9 = body.newObject("Sketcher::SketchObject", "Sketch008")
sketch9.AttachmentSupport = (doc.getObject("XY_Plane"), [""])
sketch9.MapMode = "FlatFace"
sketch9.AttachmentOffset = App.Placement(App.Vector(0, 0, -1.97), App.Rotation())
sketch9.addGeometry(Part.LineSegment(App.Vector(-3.6, 0.5, 0), App.Vector(-3.6, 0, 0)), False)
sketch9.addGeometry(Part.LineSegment(App.Vector(-3.6, 0, 0), App.Vector(-2.8, 0, 0)), False)
sketch9.addGeometry(Part.LineSegment(App.Vector(-2.8, 0, 0), App.Vector(-2.8, 0.5, 0)), False)
sketch9.addGeometry(Part.LineSegment(App.Vector(-2.8, 0.5, 0), App.Vector(-3.6, 0.5, 0)), False)
sketch9.addConstraint(Sketcher.Constraint("Coincident", 0, 2, 1, 1))
sketch9.addConstraint(Sketcher.Constraint("Coincident", 1, 2, 2, 1))
sketch9.addConstraint(Sketcher.Constraint("Coincident", 2, 2, 3, 1))
sketch9.addConstraint(Sketcher.Constraint("Coincident", 3, 2, 0, 1))
sketch9.addConstraint(Sketcher.Constraint("Vertical", 0))
sketch9.addConstraint(Sketcher.Constraint("Horizontal", 1))
sketch9.addConstraint(Sketcher.Constraint("Vertical", 2))
sketch9.addConstraint(Sketcher.Constraint("Horizontal", 3))
sketch9.addConstraint(Sketcher.Constraint("PointOnObject", 0, 2, -1))
sketch9.addConstraint(Sketcher.Constraint("DistanceX", 1, 1, 1, 2, Q("0.8 mm")))
sketch9.addConstraint(Sketcher.Constraint("DistanceY", 0, 2, 0, 1, Q("0.5 mm")))
sketch9.addConstraint(Sketcher.Constraint("DistanceX", 0, 2, -1, 1, Q("3.6 mm")))
sketch9.setExpression("Constraints[9]", "Params.sketch9_width")
sketch9.setExpression("Constraints[10]", "Params.sketch9_height")
pad6 = body.newObject("PartDesign::Pad", "Pad005")
pad6.Profile = sketch9
pad6.setExpression("Length", "Params.pad6_length")

# Sketch on XY plane
sketch10 = body.newObject("Sketcher::SketchObject", "Sketch009")
sketch10.AttachmentSupport = (doc.getObject("XY_Plane"), [""])
sketch10.MapMode = "FlatFace"
sketch10.AttachmentOffset = App.Placement(App.Vector(0, 0, -3.34), App.Rotation())
sketch10.addGeometry(Part.LineSegment(App.Vector(-2.8, 0.5, 0), App.Vector(-2.8, 0, 0)), False)
sketch10.addGeometry(Part.LineSegment(App.Vector(-2.8, 0, 0), App.Vector(-3.6, 0, 0)), False)
sketch10.addGeometry(Part.LineSegment(App.Vector(-3.6, 0, 0), App.Vector(-3.6, 0.5, 0)), False)
sketch10.addGeometry(Part.LineSegment(App.Vector(-3.6, 0.5, 0), App.Vector(-2.8, 0.5, 0)), False)
sketch10.addConstraint(Sketcher.Constraint("Coincident", 0, 2, 1, 1))
sketch10.addConstraint(Sketcher.Constraint("Coincident", 1, 2, 2, 1))
sketch10.addConstraint(Sketcher.Constraint("Coincident", 2, 2, 3, 1))
sketch10.addConstraint(Sketcher.Constraint("Coincident", 3, 2, 0, 1))
sketch10.addConstraint(Sketcher.Constraint("Vertical", 0))
sketch10.addConstraint(Sketcher.Constraint("Horizontal", 1))
sketch10.addConstraint(Sketcher.Constraint("Vertical", 2))
sketch10.addConstraint(Sketcher.Constraint("Horizontal", 3))
sketch10.addConstraint(Sketcher.Constraint("PointOnObject", 0, 2, -1))
sketch10.addConstraint(Sketcher.Constraint("DistanceX", 1, 2, 1, 1, Q("0.8 mm")))
sketch10.addConstraint(Sketcher.Constraint("DistanceY", 0, 2, 0, 1, Q("0.5 mm")))
sketch10.addConstraint(Sketcher.Constraint("DistanceX", 0, 2, -1, 1, Q("2.8 mm")))
sketch10.setExpression("Constraints[9]", "Params.sketch10_width")
sketch10.setExpression("Constraints[10]", "Params.sketch10_height")
pad7 = body.newObject("PartDesign::Pad", "Pad006")
pad7.Profile = sketch10
pad7.setExpression("Length", "Params.pad7_length")
pad7.Reversed = True

doc.recompute()
